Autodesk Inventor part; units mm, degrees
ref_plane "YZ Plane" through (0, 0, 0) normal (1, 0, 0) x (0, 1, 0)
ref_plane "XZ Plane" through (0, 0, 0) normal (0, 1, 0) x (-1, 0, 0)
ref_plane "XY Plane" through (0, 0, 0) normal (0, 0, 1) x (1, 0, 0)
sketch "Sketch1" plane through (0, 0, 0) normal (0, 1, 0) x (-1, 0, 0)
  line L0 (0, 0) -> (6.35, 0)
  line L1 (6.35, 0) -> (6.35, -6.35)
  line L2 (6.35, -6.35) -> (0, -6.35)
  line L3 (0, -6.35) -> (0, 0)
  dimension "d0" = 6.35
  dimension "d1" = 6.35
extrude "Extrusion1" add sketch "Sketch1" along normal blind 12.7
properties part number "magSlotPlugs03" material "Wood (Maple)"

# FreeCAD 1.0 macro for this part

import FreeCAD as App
import Part
import Sketcher

V = App.Vector
Q = App.Units.Quantity


def add_polygon(sketch, points):
    """Adds a closed chain of lines whose ends are joined by coincident constraints."""
    first, n = sketch.GeometryCount, len(points)
    for a, b in zip(points, points[1:] + points[:1]):
        sketch.addGeometry(Part.LineSegment(App.Vector(*a, 0), App.Vector(*b, 0)), False)
    for i in range(n):
        sketch.addConstraint(Sketcher.Constraint("Coincident", first + i, 2, first + (i + 1) % n, 1))

doc = App.newDocument("Part")
params = doc.addObject("Spreadsheet::Sheet", "Params")
for row, (alias, value) in enumerate([
    ("sketch1_width", "0.25 in"),
    ("pad1_length", "0.5 in"),
], start=1):
    params.set(f"A{row}", alias)
    params.set(f"B{row}", "=" + value)
    params.setAlias(f"B{row}", alias)

body = doc.addObject("PartDesign::Body", "Body")

# Sketch on XZ plane
sketch1 = body.newObject("Sketcher::SketchObject", "Sketch")
sketch1.AttachmentSupport = (doc.getObject("XZ_Plane"), [""])
sketch1.MapMode = "FlatFace"
add_polygon(sketch1, [(-6, 0), (0, 0), (0, -6), (-6, -6)])  # lines 0-3
sketch1.addConstraint([
    Sketcher.Constraint("Horizontal", 0),
    Sketcher.Constraint("Vertical", 1),
    Sketcher.Constraint("Horizontal", 2),
    Sketcher.Constraint("Vertical", 3),
    Sketcher.Constraint("Coincident", 0, 2, -1, 1),
    Sketcher.Constraint("Equal", 2, 1),
    Sketcher.Constraint("DistanceX", 0, 1, 0, 2, Q("0.25 in")),
])
sketch1.setExpression("Constraints[10]", "Params.sketch1_width")
pad1 = body.newObject("PartDesign::Pad", "Pad")
pad1.Profile = sketch1
pad1.setExpression("Length", "Params.pad1_length")
pad1.Reversed = True

doc.recompute()
